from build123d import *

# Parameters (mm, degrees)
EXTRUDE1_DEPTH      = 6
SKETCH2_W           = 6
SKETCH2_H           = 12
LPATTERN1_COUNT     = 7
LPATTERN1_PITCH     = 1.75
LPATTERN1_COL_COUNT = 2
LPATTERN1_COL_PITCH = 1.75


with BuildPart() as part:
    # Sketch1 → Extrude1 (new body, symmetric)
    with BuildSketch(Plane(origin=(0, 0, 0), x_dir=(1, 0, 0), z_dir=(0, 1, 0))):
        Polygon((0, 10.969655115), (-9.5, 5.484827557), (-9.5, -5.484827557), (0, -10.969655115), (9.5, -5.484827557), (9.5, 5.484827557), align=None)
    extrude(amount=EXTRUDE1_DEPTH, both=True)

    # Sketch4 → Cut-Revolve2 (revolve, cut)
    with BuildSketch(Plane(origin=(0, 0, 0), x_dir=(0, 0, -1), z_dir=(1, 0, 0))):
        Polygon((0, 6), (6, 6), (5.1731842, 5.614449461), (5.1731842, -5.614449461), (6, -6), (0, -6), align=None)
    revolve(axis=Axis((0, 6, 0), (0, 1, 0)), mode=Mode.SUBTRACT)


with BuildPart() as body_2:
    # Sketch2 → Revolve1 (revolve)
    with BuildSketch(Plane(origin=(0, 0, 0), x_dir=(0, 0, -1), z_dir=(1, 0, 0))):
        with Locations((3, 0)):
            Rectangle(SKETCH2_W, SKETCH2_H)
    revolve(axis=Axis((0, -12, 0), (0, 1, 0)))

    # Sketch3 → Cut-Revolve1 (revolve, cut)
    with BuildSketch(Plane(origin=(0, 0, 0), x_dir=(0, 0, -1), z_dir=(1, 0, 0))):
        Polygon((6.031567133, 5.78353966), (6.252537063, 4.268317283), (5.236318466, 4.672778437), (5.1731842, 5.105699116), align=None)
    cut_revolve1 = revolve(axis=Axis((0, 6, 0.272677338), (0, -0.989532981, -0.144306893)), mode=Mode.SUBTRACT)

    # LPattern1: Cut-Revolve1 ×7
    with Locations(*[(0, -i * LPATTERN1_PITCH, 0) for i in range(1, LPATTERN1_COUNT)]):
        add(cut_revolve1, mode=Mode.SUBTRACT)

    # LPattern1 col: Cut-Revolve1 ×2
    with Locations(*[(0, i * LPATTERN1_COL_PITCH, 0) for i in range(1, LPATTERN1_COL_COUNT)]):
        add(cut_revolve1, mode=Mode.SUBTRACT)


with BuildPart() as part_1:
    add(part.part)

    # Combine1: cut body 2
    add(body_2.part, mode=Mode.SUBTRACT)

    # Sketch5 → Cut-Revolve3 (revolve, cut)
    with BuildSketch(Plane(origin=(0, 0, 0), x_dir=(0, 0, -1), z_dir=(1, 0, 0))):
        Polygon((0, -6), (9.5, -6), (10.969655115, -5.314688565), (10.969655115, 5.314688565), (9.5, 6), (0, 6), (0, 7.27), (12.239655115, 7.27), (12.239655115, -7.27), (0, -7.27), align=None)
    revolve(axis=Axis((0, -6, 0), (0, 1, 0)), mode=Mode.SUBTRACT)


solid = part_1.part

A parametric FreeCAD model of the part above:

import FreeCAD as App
import Part
import Sketcher

V = App.Vector
Q = App.Units.Quantity

doc = App.newDocument("Part")
params = doc.addObject("Spreadsheet::Sheet", "Params")
for row, (alias, value) in enumerate([
    ("pad1_length", "12 mm"),
    ("sketch2_width", "12 mm"),
    ("sketch2_height", "6 mm"),
    ("groove_angle", "360 deg"),
    ("sketch3_width", "12 mm"),
    ("sketch3_height", "6 mm"),
    ("revolution_angle", "360 deg"),
    ("groove2_angle", "360 deg"),
    ("linearpattern_pitch", "1.75 mm"),
    ("linearpattern2_pitch", "1.75 mm"),
    ("sketch5_height", "9.5 mm"),
    ("sketch5_width", "1.27 mm"),
    ("groove3_angle", "360 deg"),
], start=1):
    params.set(f"A{row}", alias)
    params.set(f"B{row}", "=" + value)
    params.setAlias(f"B{row}", alias)

body = doc.addObject("PartDesign::Body", "Body")

# Sketch on XZ plane
sketch1 = body.newObject("Sketcher::SketchObject", "Sketch")
sketch1.AttachmentSupport = (doc.getObject("XZ_Plane"), [""])
sketch1.MapMode = "FlatFace"
sketch1.addGeometry(Part.LineSegment(V(0, -10.969655, 0), V(-9.5, -5.484828, 0)), False)
sketch1.addGeometry(Part.LineSegment(V(-9.5, -5.484828, 0), V(-9.5, 5.484828, 0)), False)
sketch1.addGeometry(Part.LineSegment(V(-9.5, 5.484828, 0), V(0, 10.969655, 0)), False)
sketch1.addGeometry(Part.LineSegment(V(0, 10.969655, 0), V(9.5, 5.484828, 0)), False)
sketch1.addGeometry(Part.LineSegment(V(9.5, 5.484828, 0), V(9.5, -5.484828, 0)), False)
sketch1.addGeometry(Part.LineSegment(V(9.5, -5.484828, 0), V(0, -10.969655, 0)), False)
sketch1.addConstraint(Sketcher.Constraint("Coincident", 0, 2, 1, 1))
sketch1.addConstraint(Sketcher.Constraint("Coincident", 1, 2, 2, 1))
sketch1.addConstraint(Sketcher.Constraint("Coincident", 2, 2, 3, 1))
sketch1.addConstraint(Sketcher.Constraint("Coincident", 3, 2, 4, 1))
sketch1.addConstraint(Sketcher.Constraint("Coincident", 4, 2, 5, 1))
sketch1.addConstraint(Sketcher.Constraint("Coincident", 5, 2, 0, 1))
sketch1.addConstraint(Sketcher.Constraint("Vertical", 1))
sketch1.addConstraint(Sketcher.Constraint("Vertical", 4))
sketch1.addConstraint(Sketcher.Constraint("Symmetric", 0, 2, 3, 2, -1, 1))
sketch1.addConstraint(Sketcher.Constraint("Symmetric", 2, 2, 5, 2, -1, 1))
sketch1.addConstraint(Sketcher.Constraint("PointOnObject", 2, 2, -2))
sketch1.addConstraint(Sketcher.Constraint("Parallel", 2, 5))
sketch1.addConstraint(Sketcher.Constraint("Horizontal", 1, 2, 3, 2))
sketch1.addConstraint(Sketcher.Constraint("Angle", 0, Q("150 deg")))
sketch1.addConstraint(Sketcher.Constraint("DistanceX", 1, 2, 3, 2, 19.0))
sketch1.addConstraint(Sketcher.Constraint("DistanceY", 1, 1, 1, 2, 10.969655))
pad1 = body.newObject("PartDesign::Pad", "Pad")
pad1.Profile = sketch1
pad1.setExpression("Length", "Params.pad1_length")
pad1.Midplane = True

# Sketch on YZ plane
sketch2 = body.newObject("Sketcher::SketchObject", "Sketch001")
sketch2.AttachmentSupport = (doc.getObject("YZ_Plane"), [""])
sketch2.MapMode = "FlatFace"
sketch2.addGeometry(Part.LineSegment(V(6, -6, 0), V(6, 0, 0)), False)
sketch2.addGeometry(Part.LineSegment(V(6, 0, 0), V(-6, 0, 0)), False)
sketch2.addGeometry(Part.LineSegment(V(-6, 0, 0), V(-6, -6, 0)), False)
sketch2.addGeometry(Part.LineSegment(V(-6, -6, 0), V(-5.614449, -5.173184, 0)), False)
sketch2.addGeometry(Part.LineSegment(V(-5.614449, -5.173184, 0), V(5.614449, -5.173184, 0)), False)
sketch2.addGeometry(Part.LineSegment(V(5.614449, -5.173184, 0), V(6, -6, 0)), False)
sketch2.addConstraint(Sketcher.Constraint("Coincident", 0, 2, 1, 1))
sketch2.addConstraint(Sketcher.Constraint("Coincident", 1, 2, 2, 1))
sketch2.addConstraint(Sketcher.Constraint("Coincident", 2, 2, 3, 1))
sketch2.addConstraint(Sketcher.Constraint("Coincident", 3, 2, 4, 1))
sketch2.addConstraint(Sketcher.Constraint("Coincident", 4, 2, 5, 1))
sketch2.addConstraint(Sketcher.Constraint("Coincident", 5, 2, 0, 1))
sketch2.addConstraint(Sketcher.Constraint("Vertical", 0))
sketch2.addConstraint(Sketcher.Constraint("Horizontal", 1))
sketch2.addConstraint(Sketcher.Constraint("Vertical", 2))
sketch2.addConstraint(Sketcher.Constraint("Horizontal", 4))
sketch2.addConstraint(Sketcher.Constraint("Symmetric", 0, 2, 1, 2, -1, 1))
sketch2.addConstraint(Sketcher.Constraint("Horizontal", 2, 2, 5, 2))
sketch2.addConstraint(Sketcher.Constraint("Equal", 3, 5))
sketch2.addConstraint(Sketcher.Constraint("DistanceX", 1, 2, 1, 1, 12.0))
sketch2.addConstraint(Sketcher.Constraint("DistanceY", 0, 1, 0, 2, 6.0))
sketch2.addConstraint(Sketcher.Constraint("Angle", 3, Q("65 deg")))
sketch2.addConstraint(Sketcher.Constraint("DistanceX", 4, 1, 4, 2, 11.228899))
sketch2.setExpression("Constraints[13]", "Params.sketch2_width")
sketch2.setExpression("Constraints[14]", "Params.sketch2_height")
groove = body.newObject("PartDesign::Groove", "Groove")
groove.Profile = sketch2
groove.ReferenceAxis = (sketch2, ["H_Axis"])
groove.setExpression("Angle", "Params.groove_angle")
body2 = doc.addObject("PartDesign::Body", "Body001")

# Sketch on YZ plane
sketch3 = body2.newObject("Sketcher::SketchObject", "Sketch002")
sketch3.AttachmentSupport = (doc.getObject("YZ_Plane001"), [""])
sketch3.MapMode = "FlatFace"
sketch3.addGeometry(Part.LineSegment(V(6, 0, 0), V(-6, 0, 0)), False)
sketch3.addGeometry(Part.LineSegment(V(-6, 0, 0), V(-6, -6, 0)), False)
sketch3.addGeometry(Part.LineSegment(V(-6, -6, 0), V(6, -6, 0)), False)
sketch3.addGeometry(Part.LineSegment(V(6, -6, 0), V(6, 0, 0)), False)
sketch3.addConstraint(Sketcher.Constraint("Coincident", 0, 2, 1, 1))
sketch3.addConstraint(Sketcher.Constraint("Coincident", 1, 2, 2, 1))
sketch3.addConstraint(Sketcher.Constraint("Coincident", 2, 2, 3, 1))
sketch3.addConstraint(Sketcher.Constraint("Coincident", 3, 2, 0, 1))
sketch3.addConstraint(Sketcher.Constraint("Horizontal", 0))
sketch3.addConstraint(Sketcher.Constraint("Vertical", 1))
sketch3.addConstraint(Sketcher.Constraint("Horizontal", 2))
sketch3.addConstraint(Sketcher.Constraint("Vertical", 3))
sketch3.addConstraint(Sketcher.Constraint("Symmetric", 0, 2, 3, 2, -1, 1))
sketch3.addConstraint(Sketcher.Constraint("DistanceX", 0, 2, 0, 1, 12.0))
sketch3.addConstraint(Sketcher.Constraint("DistanceY", 1, 2, 1, 1, 6.0))
sketch3.setExpression("Constraints[9]", "Params.sketch3_width")
sketch3.setExpression("Constraints[10]", "Params.sketch3_height")
revolution = body2.newObject("PartDesign::Revolution", "Revolution")
revolution.Profile = sketch3
revolution.ReferenceAxis = (sketch3, ["H_Axis"])
revolution.setExpression("Angle", "Params.revolution_angle")

# Sketch on YZ plane
sketch4 = body2.newObject("Sketcher::SketchObject", "Sketch003")
sketch4.AttachmentSupport = (doc.getObject("YZ_Plane001"), [""])
sketch4.MapMode = "FlatFace"
sketch4.addGeometry(Part.LineSegment(V(4.268317, -6.252537, 0), V(5.78354, -6.031567, 0)), False)
sketch4.addGeometry(Part.LineSegment(V(5.78354, -6.031567, 0), V(5.105699, -5.173184, 0)), False)
sketch4.addGeometry(Part.LineSegment(V(5.105699, -5.173184, 0), V(4.672778, -5.236318, 0)), False)
sketch4.addGeometry(Part.LineSegment(V(4.672778, -5.236318, 0), V(4.268317, -6.252537, 0)), False)
sketch4.addGeometry(Part.LineSegment(V(4.887824, 0.110485, 0), V(3.372601, -0.110485, 0)), True)  # axis
sketch4.addConstraint(Sketcher.Constraint("Coincident", 0, 2, 1, 1))
sketch4.addConstraint(Sketcher.Constraint("Coincident", 1, 2, 2, 1))
sketch4.addConstraint(Sketcher.Constraint("Coincident", 2, 2, 3, 1))
sketch4.addConstraint(Sketcher.Constraint("Coincident", 3, 2, 0, 1))
sketch4.addConstraint(Sketcher.Constraint("Parallel", 0, 2))
sketch4.addConstraint(Sketcher.Constraint("Parallel", 2, 4))
sketch4.addConstraint(Sketcher.Constraint("Equal", 1, 3))
sketch4.addConstraint(Sketcher.Constraint("Equal", 0, 4))
sketch4.addConstraint(Sketcher.Constraint("Distance", 2, 0.4375))
sketch4.addConstraint(Sketcher.Constraint("DistanceX", -1, 1, 1, 2, 5.105699))
sketch4.addConstraint(Sketcher.Constraint("DistanceX", -1, 1, 4, 2, 3.372601))
sketch4.addConstraint(Sketcher.Constraint("DistanceY", 1, 2, 4, 2, 5.062699))
sketch4.addConstraint(Sketcher.Constraint("Distance", 0, 1.53125))
sketch4.addConstraint(Sketcher.Constraint("Distance", 1, 1.09375))
sketch4.addConstraint(Sketcher.Constraint("DistanceX", -1, 1, 0, 2, 5.78354))
sketch4.addConstraint(Sketcher.Constraint("DistanceY", 2, 2, -1, 1, 5.236318))
groove2 = body2.newObject("PartDesign::Groove", "Groove001")
groove2.Profile = sketch4
groove2.ReferenceAxis = (sketch4, ["Axis0"])
groove2.setExpression("Angle", "Params.groove2_angle")
doc.recompute()

linearpattern = body2.newObject("PartDesign::LinearPattern", "LinearPattern")
linearpattern.Originals = [groove2]
linearpattern.Direction = (doc.getObject("Y_Axis001"), [""])
linearpattern.Mode = "offset"
linearpattern.setExpression("Offset", "Params.linearpattern_pitch")
linearpattern.Occurrences = 7
linearpattern.Reversed = True
body2.Tip = linearpattern
doc.recompute()

linearpattern2 = body2.newObject("PartDesign::LinearPattern", "LinearPattern001")
linearpattern2.Originals = [groove2]
linearpattern2.Direction = (doc.getObject("Y_Axis001"), [""])
linearpattern2.Mode = "offset"
linearpattern2.setExpression("Offset", "Params.linearpattern2_pitch")
linearpattern2.Occurrences = 2
body2.Tip = linearpattern2
doc.recompute()

boolean = body.newObject("PartDesign::Boolean", "Boolean")
boolean.Type = "Cut"
boolean.addObjects([body2])

# Sketch on YZ plane
sketch5 = body.newObject("Sketcher::SketchObject", "Sketch004")
sketch5.AttachmentSupport = (doc.getObject("YZ_Plane"), [""])
sketch5.MapMode = "FlatFace"
sketch5.addGeometry(Part.LineSegment(V(-6, -9.5, 0), V(-6, 0, 0)), False)
sketch5.addGeometry(Part.LineSegment(V(-6, 0, 0), V(-7.27, 0, 0)), False)
sketch5.addGeometry(Part.LineSegment(V(-7.27, 0, 0), V(-7.27, -12.239655, 0)), False)
sketch5.addGeometry(Part.LineSegment(V(-7.27, -12.239655, 0), V(7.27, -12.239655, 0)), False)
sketch5.addGeometry(Part.LineSegment(V(7.27, -12.239655, 0), V(7.27, 0, 0)), False)
sketch5.addGeometry(Part.LineSegment(V(7.27, 0, 0), V(6, 0, 0)), False)
sketch5.addGeometry(Part.LineSegment(V(6, 0, 0), V(6, -9.5, 0)), False)
sketch5.addGeometry(Part.LineSegment(V(6, -9.5, 0), V(5.314689, -10.969655, 0)), False)
sketch5.addGeometry(Part.LineSegment(V(5.314689, -10.969655, 0), V(-5.314689, -10.969655, 0)), False)
sketch5.addGeometry(Part.LineSegment(V(-5.314689, -10.969655, 0), V(-6, -9.5, 0)), False)
sketch5.addConstraint(Sketcher.Constraint("Coincident", 0, 2, 1, 1))
sketch5.addConstraint(Sketcher.Constraint("Coincident", 1, 2, 2, 1))
sketch5.addConstraint(Sketcher.Constraint("Coincident", 2, 2, 3, 1))
sketch5.addConstraint(Sketcher.Constraint("Coincident", 3, 2, 4, 1))
sketch5.addConstraint(Sketcher.Constraint("Coincident", 4, 2, 5, 1))
sketch5.addConstraint(Sketcher.Constraint("Coincident", 5, 2, 6, 1))
sketch5.addConstraint(Sketcher.Constraint("Coincident", 6, 2, 7, 1))
sketch5.addConstraint(Sketcher.Constraint("Coincident", 7, 2, 8, 1))
sketch5.addConstraint(Sketcher.Constraint("Coincident", 8, 2, 9, 1))
sketch5.addConstraint(Sketcher.Constraint("Coincident", 9, 2, 0, 1))
sketch5.addConstraint(Sketcher.Constraint("Vertical", 0))
sketch5.addConstraint(Sketcher.Constraint("Horizontal", 1))
sketch5.addConstraint(Sketcher.Constraint("Vertical", 2))
sketch5.addConstraint(Sketcher.Constraint("Horizontal", 3))
sketch5.addConstraint(Sketcher.Constraint("Vertical", 4))
sketch5.addConstraint(Sketcher.Constraint("Horizontal", 5))
sketch5.addConstraint(Sketcher.Constraint("Vertical", 6))
sketch5.addConstraint(Sketcher.Constraint("Horizontal", 8))
sketch5.addConstraint(Sketcher.Constraint("Symmetric", 1, 2, 4, 2, -1, 1))
sketch5.addConstraint(Sketcher.Constraint("Symmetric", 0, 2, 5, 2, -2))
sketch5.addConstraint(Sketcher.Constraint("Horizontal", 6, 2, 9, 2))
sketch5.addConstraint(Sketcher.Constraint("Equal", 7, 9))
sketch5.addConstraint(Sketcher.Constraint("Angle", 7, Q("-115 deg")))
sketch5.addConstraint(Sketcher.Constraint("DistanceY", 0, 1, 0, 2, 9.5))
sketch5.addConstraint(Sketcher.Constraint("DistanceX", 0, 2, -1, 1, 6.0))
sketch5.addConstraint(Sketcher.Constraint("DistanceX", 1, 2, 1, 1, 1.27))
sketch5.addConstraint(Sketcher.Constraint("DistanceY", 3, 2, 7, 2, 1.27))
sketch5.addConstraint(Sketcher.Constraint("DistanceX", 8, 2, 8, 1, 10.629377))
sketch5.setExpression("Constraints[23]", "Params.sketch5_height")
sketch5.setExpression("Constraints[25]", "Params.sketch5_width")
groove3 = body.newObject("PartDesign::Groove", "Groove002")
groove3.Profile = sketch5
groove3.ReferenceAxis = (sketch5, ["H_Axis"])
groove3.setExpression("Angle", "Params.groove3_angle")

doc.recompute()
